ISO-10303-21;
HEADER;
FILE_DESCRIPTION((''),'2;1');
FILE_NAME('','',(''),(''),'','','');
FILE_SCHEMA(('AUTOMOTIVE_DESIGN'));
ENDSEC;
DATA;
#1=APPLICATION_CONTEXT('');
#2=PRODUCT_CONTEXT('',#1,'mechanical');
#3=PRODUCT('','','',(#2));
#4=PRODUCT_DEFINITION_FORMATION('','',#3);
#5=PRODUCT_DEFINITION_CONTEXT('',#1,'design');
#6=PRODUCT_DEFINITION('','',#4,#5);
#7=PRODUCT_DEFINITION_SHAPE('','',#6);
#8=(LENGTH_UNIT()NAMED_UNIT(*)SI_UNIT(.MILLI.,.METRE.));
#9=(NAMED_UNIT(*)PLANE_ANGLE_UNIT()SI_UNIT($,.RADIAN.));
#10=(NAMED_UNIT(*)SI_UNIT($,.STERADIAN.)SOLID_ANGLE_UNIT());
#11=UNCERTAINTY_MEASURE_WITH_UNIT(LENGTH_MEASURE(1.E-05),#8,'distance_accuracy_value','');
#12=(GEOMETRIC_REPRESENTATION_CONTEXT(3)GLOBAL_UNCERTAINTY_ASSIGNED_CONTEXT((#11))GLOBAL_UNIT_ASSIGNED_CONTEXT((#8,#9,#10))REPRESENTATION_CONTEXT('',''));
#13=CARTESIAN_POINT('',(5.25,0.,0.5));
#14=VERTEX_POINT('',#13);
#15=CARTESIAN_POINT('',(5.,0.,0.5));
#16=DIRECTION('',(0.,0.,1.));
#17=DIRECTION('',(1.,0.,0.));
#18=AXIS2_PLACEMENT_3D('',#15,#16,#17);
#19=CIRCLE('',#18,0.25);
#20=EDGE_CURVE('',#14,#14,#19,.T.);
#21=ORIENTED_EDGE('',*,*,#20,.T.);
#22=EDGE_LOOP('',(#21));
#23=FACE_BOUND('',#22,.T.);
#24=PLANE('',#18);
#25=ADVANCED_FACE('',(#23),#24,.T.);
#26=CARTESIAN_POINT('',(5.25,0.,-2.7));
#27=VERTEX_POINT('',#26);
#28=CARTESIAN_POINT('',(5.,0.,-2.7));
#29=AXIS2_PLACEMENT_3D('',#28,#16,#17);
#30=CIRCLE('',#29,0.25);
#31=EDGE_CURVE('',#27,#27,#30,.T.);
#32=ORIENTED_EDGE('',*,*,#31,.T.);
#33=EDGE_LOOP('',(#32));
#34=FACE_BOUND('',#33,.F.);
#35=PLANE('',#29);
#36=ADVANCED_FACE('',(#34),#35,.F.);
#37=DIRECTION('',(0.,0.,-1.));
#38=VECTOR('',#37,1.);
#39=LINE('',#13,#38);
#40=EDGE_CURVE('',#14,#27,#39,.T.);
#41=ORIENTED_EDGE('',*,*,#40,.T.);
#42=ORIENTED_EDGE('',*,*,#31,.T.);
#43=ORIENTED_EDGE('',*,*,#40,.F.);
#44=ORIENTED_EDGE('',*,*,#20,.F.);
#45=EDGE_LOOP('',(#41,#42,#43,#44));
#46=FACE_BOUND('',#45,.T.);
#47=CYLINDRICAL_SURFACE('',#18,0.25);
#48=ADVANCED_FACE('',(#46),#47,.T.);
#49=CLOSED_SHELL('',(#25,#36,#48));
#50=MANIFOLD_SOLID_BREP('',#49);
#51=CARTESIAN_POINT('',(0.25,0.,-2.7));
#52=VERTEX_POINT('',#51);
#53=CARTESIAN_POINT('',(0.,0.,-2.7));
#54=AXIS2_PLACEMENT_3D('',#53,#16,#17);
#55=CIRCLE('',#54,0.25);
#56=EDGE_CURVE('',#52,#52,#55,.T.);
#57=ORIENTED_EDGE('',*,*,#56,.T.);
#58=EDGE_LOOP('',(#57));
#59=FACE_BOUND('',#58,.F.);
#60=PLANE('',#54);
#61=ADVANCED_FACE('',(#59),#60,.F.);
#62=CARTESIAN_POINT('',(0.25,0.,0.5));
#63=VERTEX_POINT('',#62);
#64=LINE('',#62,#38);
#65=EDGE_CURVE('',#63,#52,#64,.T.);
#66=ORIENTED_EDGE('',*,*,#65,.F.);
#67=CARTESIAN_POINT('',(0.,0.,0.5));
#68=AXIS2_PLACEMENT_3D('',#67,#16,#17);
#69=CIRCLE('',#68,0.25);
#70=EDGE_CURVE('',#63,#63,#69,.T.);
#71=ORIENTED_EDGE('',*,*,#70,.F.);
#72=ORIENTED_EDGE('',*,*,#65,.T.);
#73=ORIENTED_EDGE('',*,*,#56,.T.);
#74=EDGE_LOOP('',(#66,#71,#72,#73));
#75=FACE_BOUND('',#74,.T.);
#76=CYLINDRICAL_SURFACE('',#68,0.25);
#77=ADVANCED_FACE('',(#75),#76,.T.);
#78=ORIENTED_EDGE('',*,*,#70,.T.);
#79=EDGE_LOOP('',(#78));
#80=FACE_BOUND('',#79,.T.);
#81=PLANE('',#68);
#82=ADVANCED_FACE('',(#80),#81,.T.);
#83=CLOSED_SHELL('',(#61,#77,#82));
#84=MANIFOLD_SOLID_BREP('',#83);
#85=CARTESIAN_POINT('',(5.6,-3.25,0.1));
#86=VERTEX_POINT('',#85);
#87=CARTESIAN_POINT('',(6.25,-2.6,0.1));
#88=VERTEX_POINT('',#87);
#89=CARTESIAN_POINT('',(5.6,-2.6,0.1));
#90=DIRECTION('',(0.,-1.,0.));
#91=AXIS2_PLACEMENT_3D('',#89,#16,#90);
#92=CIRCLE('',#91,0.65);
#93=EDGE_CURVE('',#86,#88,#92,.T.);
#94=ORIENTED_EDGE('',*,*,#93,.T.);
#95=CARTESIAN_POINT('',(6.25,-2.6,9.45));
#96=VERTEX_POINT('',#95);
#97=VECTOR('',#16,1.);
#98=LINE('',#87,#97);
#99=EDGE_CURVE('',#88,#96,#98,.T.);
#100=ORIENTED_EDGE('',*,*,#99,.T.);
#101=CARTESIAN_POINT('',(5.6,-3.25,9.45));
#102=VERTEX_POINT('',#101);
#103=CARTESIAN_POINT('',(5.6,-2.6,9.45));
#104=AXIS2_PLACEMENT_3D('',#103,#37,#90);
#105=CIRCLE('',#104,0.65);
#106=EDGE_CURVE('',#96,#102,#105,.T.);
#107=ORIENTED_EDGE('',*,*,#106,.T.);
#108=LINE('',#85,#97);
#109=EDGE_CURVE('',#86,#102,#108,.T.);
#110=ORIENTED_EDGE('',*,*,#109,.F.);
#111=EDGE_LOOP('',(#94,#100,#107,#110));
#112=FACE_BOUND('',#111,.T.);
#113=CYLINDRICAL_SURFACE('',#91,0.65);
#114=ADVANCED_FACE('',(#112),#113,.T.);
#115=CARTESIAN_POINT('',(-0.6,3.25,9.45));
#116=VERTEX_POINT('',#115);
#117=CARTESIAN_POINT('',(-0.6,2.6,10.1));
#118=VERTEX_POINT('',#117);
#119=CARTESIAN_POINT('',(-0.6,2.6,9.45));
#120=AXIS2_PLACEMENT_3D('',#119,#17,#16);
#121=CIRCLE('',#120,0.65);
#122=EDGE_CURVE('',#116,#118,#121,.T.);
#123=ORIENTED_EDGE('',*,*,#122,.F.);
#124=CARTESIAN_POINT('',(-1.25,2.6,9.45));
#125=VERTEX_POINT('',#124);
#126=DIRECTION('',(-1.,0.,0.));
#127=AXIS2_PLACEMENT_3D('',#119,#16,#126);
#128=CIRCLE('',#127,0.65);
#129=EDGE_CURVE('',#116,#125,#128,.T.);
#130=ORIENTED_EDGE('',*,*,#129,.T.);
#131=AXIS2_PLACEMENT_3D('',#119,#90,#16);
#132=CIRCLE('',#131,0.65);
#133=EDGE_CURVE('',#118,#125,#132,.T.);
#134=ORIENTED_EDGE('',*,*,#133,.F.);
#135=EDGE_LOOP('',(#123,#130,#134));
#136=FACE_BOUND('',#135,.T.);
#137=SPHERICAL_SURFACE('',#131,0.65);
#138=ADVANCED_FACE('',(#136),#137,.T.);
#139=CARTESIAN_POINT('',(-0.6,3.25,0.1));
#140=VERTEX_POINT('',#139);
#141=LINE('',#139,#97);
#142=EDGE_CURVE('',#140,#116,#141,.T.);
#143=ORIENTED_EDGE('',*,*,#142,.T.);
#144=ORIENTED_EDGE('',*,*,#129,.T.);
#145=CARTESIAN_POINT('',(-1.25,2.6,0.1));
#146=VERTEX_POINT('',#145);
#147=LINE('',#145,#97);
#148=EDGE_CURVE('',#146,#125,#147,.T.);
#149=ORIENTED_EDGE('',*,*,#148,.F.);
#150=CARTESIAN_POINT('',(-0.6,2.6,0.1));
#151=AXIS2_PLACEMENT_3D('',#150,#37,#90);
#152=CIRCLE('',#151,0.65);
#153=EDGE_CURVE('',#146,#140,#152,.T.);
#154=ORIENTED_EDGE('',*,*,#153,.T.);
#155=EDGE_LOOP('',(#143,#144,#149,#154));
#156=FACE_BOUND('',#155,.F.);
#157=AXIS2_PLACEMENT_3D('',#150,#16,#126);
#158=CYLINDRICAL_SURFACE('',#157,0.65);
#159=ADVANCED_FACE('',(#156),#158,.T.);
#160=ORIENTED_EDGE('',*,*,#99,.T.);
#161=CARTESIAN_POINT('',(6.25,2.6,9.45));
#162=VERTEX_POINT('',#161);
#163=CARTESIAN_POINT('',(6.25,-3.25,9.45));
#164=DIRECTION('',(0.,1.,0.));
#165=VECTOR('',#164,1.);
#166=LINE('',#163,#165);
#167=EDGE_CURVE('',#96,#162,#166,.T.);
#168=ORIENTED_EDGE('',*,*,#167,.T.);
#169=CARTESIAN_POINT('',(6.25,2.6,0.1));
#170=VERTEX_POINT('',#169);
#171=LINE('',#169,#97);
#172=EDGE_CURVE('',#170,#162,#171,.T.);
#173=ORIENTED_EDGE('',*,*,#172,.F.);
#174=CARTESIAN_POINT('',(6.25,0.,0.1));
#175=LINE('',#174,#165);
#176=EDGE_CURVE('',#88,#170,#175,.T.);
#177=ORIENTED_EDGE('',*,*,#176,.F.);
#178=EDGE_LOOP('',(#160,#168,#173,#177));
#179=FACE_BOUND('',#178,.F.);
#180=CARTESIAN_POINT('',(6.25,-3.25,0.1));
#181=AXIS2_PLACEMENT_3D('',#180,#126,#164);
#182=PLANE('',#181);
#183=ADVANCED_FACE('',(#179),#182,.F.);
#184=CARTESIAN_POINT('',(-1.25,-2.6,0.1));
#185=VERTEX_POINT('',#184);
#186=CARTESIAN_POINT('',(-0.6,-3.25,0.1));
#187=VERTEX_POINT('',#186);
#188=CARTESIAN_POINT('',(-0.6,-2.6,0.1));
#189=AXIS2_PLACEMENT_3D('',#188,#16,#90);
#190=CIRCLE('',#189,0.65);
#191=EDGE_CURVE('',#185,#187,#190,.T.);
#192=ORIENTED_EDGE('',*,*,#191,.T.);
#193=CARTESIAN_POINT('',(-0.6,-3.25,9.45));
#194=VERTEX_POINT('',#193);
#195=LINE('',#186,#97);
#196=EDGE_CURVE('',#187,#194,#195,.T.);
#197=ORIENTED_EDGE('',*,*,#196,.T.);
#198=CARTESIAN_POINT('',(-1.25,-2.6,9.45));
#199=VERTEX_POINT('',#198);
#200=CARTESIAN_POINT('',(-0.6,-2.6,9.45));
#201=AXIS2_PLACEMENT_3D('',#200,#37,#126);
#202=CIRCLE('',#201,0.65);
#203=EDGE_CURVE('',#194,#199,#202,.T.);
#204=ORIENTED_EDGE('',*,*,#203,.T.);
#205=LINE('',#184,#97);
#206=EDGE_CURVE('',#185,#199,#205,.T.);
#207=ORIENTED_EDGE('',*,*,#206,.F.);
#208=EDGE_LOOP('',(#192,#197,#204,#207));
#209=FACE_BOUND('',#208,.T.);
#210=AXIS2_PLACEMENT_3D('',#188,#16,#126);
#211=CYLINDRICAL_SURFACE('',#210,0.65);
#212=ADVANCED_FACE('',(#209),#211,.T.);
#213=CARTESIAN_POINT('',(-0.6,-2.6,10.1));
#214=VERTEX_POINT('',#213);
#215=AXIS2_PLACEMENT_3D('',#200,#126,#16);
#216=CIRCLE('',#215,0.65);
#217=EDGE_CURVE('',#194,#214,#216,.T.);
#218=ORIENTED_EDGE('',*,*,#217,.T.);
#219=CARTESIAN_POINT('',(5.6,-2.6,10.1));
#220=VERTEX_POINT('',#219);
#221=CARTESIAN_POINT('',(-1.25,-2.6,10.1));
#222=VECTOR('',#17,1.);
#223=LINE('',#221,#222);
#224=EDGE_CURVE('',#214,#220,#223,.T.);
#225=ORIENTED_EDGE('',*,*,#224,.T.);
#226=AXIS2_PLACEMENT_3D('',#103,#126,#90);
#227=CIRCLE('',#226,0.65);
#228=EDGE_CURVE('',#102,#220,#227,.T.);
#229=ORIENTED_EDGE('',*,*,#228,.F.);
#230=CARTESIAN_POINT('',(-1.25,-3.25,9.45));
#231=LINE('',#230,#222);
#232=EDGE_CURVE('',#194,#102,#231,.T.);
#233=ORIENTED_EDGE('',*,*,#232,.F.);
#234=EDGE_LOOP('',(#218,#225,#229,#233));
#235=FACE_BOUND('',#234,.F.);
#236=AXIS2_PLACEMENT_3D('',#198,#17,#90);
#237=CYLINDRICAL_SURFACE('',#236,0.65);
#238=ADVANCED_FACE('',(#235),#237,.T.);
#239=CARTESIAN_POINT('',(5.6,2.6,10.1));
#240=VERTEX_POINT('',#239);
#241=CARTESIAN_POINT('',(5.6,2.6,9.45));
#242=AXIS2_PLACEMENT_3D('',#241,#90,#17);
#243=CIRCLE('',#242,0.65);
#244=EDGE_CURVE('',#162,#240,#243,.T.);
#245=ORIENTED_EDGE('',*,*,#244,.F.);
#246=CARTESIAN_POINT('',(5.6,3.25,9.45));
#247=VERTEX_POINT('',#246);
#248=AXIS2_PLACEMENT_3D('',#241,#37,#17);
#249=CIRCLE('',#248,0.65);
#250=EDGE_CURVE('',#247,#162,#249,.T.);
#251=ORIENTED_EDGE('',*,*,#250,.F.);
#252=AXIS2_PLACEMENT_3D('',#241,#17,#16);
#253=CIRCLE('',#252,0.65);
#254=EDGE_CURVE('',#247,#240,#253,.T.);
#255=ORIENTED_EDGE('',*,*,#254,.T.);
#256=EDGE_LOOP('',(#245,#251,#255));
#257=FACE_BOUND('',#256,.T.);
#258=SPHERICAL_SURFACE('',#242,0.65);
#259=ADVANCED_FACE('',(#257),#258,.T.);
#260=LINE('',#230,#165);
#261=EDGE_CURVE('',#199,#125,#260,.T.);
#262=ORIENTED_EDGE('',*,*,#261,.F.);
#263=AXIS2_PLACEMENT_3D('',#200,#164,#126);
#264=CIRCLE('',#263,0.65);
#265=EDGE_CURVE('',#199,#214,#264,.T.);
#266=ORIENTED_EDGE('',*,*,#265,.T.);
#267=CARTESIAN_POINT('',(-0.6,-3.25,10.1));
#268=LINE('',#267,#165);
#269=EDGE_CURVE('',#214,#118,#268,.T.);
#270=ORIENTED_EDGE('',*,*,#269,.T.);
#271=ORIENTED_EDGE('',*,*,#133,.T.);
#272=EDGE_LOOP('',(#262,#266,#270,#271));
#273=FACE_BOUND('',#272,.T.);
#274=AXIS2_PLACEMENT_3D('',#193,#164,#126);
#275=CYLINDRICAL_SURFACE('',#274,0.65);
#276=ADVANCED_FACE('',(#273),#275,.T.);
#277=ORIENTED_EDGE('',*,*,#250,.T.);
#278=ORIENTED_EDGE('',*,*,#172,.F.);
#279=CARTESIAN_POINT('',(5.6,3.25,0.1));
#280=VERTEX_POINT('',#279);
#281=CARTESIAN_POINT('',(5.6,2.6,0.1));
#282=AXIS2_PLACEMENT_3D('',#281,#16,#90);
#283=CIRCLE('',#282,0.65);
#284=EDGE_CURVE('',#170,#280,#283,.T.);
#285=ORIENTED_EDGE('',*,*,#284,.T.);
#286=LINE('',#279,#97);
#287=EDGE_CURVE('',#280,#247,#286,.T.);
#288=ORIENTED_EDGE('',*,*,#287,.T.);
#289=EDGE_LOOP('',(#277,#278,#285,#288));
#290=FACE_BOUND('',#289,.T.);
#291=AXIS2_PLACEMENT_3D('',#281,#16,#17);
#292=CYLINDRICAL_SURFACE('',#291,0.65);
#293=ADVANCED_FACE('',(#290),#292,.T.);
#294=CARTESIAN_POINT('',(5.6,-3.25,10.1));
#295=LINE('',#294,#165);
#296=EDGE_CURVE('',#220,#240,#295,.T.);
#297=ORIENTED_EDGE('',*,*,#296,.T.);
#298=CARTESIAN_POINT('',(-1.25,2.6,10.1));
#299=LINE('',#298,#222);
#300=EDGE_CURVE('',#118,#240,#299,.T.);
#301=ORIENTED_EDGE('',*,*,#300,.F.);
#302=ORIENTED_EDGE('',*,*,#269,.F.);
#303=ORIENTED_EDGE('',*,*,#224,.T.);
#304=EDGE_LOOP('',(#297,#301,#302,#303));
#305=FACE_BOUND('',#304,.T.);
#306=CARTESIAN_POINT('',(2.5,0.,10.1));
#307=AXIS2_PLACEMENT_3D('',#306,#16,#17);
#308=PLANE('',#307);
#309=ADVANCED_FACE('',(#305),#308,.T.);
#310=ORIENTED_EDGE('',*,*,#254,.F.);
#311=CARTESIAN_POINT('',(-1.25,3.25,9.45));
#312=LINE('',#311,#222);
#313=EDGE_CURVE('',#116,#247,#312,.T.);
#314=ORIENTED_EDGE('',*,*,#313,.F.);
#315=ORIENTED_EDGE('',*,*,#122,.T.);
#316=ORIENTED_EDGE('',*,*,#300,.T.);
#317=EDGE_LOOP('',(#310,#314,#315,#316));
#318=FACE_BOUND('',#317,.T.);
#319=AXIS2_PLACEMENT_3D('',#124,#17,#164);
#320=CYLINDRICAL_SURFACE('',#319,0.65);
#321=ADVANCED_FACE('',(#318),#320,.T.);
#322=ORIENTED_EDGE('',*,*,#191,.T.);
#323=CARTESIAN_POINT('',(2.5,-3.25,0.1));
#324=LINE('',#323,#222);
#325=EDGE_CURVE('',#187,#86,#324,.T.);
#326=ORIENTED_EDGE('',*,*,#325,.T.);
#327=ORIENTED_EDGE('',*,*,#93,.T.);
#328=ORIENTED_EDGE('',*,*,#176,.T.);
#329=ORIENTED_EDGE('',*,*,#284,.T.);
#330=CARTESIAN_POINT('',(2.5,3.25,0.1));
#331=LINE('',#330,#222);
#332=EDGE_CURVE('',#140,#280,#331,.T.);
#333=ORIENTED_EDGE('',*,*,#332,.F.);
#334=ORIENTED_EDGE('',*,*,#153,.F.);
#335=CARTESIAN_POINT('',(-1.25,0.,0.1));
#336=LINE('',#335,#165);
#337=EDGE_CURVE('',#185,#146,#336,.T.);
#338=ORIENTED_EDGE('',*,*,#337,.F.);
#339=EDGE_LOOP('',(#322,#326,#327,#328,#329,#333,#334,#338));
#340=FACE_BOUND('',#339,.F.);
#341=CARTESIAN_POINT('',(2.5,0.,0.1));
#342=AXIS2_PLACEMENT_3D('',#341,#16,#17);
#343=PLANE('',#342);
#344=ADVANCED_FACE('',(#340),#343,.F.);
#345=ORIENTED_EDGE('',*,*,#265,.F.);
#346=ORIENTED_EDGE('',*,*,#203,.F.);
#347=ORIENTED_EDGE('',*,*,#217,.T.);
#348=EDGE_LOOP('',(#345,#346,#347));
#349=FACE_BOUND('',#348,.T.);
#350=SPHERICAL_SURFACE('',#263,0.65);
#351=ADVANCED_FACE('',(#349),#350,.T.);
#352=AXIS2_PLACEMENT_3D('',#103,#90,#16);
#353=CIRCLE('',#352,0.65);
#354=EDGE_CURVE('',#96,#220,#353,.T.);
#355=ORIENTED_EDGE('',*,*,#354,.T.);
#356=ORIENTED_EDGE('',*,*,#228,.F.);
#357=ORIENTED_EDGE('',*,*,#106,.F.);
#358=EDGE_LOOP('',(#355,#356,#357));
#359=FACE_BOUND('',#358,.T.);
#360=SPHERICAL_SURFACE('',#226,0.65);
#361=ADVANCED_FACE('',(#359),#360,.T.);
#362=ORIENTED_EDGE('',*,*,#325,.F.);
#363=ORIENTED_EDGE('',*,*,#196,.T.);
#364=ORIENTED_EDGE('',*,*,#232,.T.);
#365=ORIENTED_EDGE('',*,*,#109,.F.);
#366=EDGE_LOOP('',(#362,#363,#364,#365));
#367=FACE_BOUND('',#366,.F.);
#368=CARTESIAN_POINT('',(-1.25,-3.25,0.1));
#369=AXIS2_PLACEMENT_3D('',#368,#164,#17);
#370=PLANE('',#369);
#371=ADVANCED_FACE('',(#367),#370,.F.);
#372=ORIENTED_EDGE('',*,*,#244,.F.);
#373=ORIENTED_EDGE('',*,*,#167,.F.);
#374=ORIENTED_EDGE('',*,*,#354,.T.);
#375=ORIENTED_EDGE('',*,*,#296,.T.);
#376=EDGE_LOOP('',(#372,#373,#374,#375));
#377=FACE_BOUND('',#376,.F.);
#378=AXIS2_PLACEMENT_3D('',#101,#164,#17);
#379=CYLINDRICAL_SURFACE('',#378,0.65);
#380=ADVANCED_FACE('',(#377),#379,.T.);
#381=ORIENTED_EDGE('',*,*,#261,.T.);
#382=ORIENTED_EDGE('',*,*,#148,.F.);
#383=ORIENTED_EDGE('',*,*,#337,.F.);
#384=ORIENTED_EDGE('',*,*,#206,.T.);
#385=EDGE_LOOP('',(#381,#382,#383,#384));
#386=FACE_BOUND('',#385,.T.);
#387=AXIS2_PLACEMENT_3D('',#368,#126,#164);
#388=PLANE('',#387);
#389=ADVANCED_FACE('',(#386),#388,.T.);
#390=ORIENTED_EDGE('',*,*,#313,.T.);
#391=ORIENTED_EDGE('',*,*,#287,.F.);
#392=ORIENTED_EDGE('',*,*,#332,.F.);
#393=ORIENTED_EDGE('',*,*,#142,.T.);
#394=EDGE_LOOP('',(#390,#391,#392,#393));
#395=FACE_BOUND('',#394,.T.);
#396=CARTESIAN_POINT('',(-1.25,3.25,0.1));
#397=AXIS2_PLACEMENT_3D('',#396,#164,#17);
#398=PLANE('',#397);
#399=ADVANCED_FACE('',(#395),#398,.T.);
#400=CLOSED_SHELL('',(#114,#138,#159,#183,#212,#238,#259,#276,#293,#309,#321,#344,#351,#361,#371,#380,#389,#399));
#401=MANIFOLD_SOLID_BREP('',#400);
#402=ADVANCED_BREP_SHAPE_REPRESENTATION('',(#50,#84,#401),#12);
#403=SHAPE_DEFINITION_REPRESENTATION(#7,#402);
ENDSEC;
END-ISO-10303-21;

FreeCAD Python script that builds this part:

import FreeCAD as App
import Part
import Sketcher

V = App.Vector


def edges_at(feature, points):
    """Names of the edges that pass closest to the given points."""
    edges = feature.Shape.Edges
    near = lambda p: min(range(len(edges)), key=lambda i: edges[i].distToShape(Part.Vertex(*p))[0])
    return sorted({f"Edge{near(p) + 1}" for p in points})


def add_polygon(sketch, points):
    """Adds a closed chain of lines whose ends are joined by coincident constraints."""
    first, n = sketch.GeometryCount, len(points)
    for a, b in zip(points, points[1:] + points[:1]):
        sketch.addGeometry(Part.LineSegment(App.Vector(*a, 0), App.Vector(*b, 0)), False)
    for i in range(n):
        sketch.addConstraint(Sketcher.Constraint("Coincident", first + i, 2, first + (i + 1) % n, 1))

doc = App.newDocument("Part")
params = doc.addObject("Spreadsheet::Sheet", "Params")
for row, (alias, value) in enumerate([
    ("sketch1_width", "7.5 mm"),
    ("sketch1_height", "6.5 mm"),
    ("pad1_length", "10 mm"),
    ("fillet_radius", "0.65 mm"),
    ("sketch2_diameter", "0.5 mm"),
    ("pad2_length", "3.2 mm"),
], start=1):
    params.set(f"A{row}", alias)
    params.set(f"B{row}", "=" + value)
    params.setAlias(f"B{row}", alias)

body = doc.addObject("PartDesign::Body", "Body")

# Sketch on XY plane
sketch1 = body.newObject("Sketcher::SketchObject", "Sketch")
sketch1.AttachmentSupport = (doc.getObject("XY_Plane"), [""])
sketch1.MapMode = "FlatFace"
sketch1.AttachmentOffset = App.Placement(V(0, 0, 0.1), App.Rotation())
add_polygon(sketch1, [(-1.25, 3.25), (-1.25, -3.25), (6.25, -3.25), (6.25, 3.25)])  # lines 0-3
sketch1.addConstraint(Sketcher.Constraint("Vertical", 0))
sketch1.addConstraint(Sketcher.Constraint("Horizontal", 1))
sketch1.addConstraint(Sketcher.Constraint("Vertical", 2))
sketch1.addConstraint(Sketcher.Constraint("Horizontal", 3))
sketch1.addConstraint(Sketcher.Constraint("DistanceX", 1, 1, 1, 2, 7.5))
sketch1.addConstraint(Sketcher.Constraint("DistanceY", 0, 2, 0, 1, 6.5))
sketch1.addConstraint(Sketcher.Constraint("DistanceX", 0, 2, -1, 1, 1.25))
sketch1.addConstraint(Sketcher.Constraint("DistanceY", 0, 2, -1, 1, 3.25))
sketch1.setExpression("Constraints[8]", "Params.sketch1_width")
sketch1.setExpression("Constraints[9]", "Params.sketch1_height")
pad1 = body.newObject("PartDesign::Pad", "Pad")
pad1.Profile = sketch1
pad1.setExpression("Length", "Params.pad1_length")
doc.recompute()

fillet = body.newObject("PartDesign::Fillet", "Fillet")
fillet.Base = (pad1, edges_at(pad1, [
    (-1.25, 0, 10.1),
    (-1.25, -3.25, 5.1),
    (2.5, -3.25, 10.1),
    (6.25, -3.25, 5.1),
    (6.25, 0, 10.1),
    (6.25, 3.25, 5.1),
    (2.5, 3.25, 10.1),
    (-1.25, 3.25, 5.1),
]))
fillet.setExpression("Radius", "Params.fillet_radius")
body2 = doc.addObject("PartDesign::Body", "Body001")
body2.AllowCompound = True

# Sketch on XY plane
sketch2 = body2.newObject("Sketcher::SketchObject", "Sketch001")
sketch2.AttachmentSupport = (doc.getObject("XY_Plane001"), [""])
sketch2.MapMode = "FlatFace"
sketch2.AttachmentOffset = App.Placement(V(0, 0, 0.5), App.Rotation())
sketch2.addGeometry(Part.Circle(V(0, 0, 0), V(0, 0, 1), 0.25), False)
sketch2.addGeometry(Part.Circle(V(5, 0, 0), V(0, 0, 1), 0.25), False)
sketch2.addConstraint(Sketcher.Constraint("Coincident", 0, 3, -1, 1))
sketch2.addConstraint(Sketcher.Constraint("Equal", 0, 1))
sketch2.addConstraint(Sketcher.Constraint("PointOnObject", 1, 3, -1))
sketch2.addConstraint(Sketcher.Constraint("Diameter", 0, 0.5))
sketch2.addConstraint(Sketcher.Constraint("DistanceX", -1, 1, 1, 3, 5.0))
sketch2.setExpression("Constraints[3]", "Params.sketch2_diameter")
pad2 = body2.newObject("PartDesign::Pad", "Pad001")
pad2.Profile = sketch2
pad2.setExpression("Length", "Params.pad2_length")
pad2.Reversed = True

doc.recompute()
